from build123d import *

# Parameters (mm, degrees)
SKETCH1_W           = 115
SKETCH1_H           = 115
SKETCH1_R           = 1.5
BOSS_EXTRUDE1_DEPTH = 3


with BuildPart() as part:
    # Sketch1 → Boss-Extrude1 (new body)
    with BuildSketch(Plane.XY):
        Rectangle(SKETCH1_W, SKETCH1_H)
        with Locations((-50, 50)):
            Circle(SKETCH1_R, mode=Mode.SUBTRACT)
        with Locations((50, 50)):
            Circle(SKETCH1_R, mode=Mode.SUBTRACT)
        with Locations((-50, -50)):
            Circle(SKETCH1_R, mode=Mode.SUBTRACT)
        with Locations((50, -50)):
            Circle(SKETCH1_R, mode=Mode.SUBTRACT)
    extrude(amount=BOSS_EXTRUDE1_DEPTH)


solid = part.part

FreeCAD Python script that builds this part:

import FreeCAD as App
import Part
import Sketcher
from FreeCAD import Vector
Q = App.Units.Quantity


def add_polygon(sketch, points):
    """Adds a closed chain of lines whose ends are joined by coincident constraints."""
    first, n = sketch.GeometryCount, len(points)
    for a, b in zip(points, points[1:] + points[:1]):
        sketch.addGeometry(Part.LineSegment(App.Vector(*a, 0), App.Vector(*b, 0)), False)
    for i in range(n):
        sketch.addConstraint(Sketcher.Constraint("Coincident", first + i, 2, first + (i + 1) % n, 1))

doc = App.newDocument("Part")
body = doc.addObject("PartDesign::Body", "Body")

sketch1 = body.newObject("Sketcher::SketchObject", "Sketch")
sketch1.AttachmentSupport = (doc.getObject("XY_Plane"), [""])
sketch1.MapMode = "FlatFace"
add_polygon(sketch1, [(-57.5, 57.5), (-57.5, -57.5), (57.5, -57.5), (57.5, 57.5)])
sketch1.addGeometry(Part.Circle(Vector(-50, -50, 0), Vector(0, 0, 1), 1.5), False)
sketch1.addGeometry(Part.Circle(Vector(50, -50, 0), Vector(0, 0, 1), 1.5), False)
sketch1.addGeometry(Part.Circle(Vector(-50, 50, 0), Vector(0, 0, 1), 1.5), False)
sketch1.addGeometry(Part.Circle(Vector(50, 50, 0), Vector(0, 0, 1), 1.5), False)
sketch1.addConstraint([
    Sketcher.Constraint("Vertical", 0),
    Sketcher.Constraint("Horizontal", 1),
    Sketcher.Constraint("Vertical", 2),
    Sketcher.Constraint("Horizontal", 3),
    Sketcher.Constraint("Equal", 4, 5),
    Sketcher.Constraint("Equal", 5, 6),
    Sketcher.Constraint("Equal", 6, 7),
    Sketcher.Constraint("Symmetric", 5, 3, 6, 3, -1, 1),
    Sketcher.Constraint("Symmetric", 4, 3, 7, 3, -1, 1),
    Sketcher.Constraint("Symmetric", 0, 2, 2, 2, -1, 1),
    Sketcher.Constraint("Symmetric", 4, 3, 5, 3, -2),
    Sketcher.Constraint("Equal", 3, 0),
    Sketcher.Constraint("Diameter", 4, Q("3 mm")),
    Sketcher.Constraint("DistanceX", 1, 1, 1, 2, Q("115 mm")),
    Sketcher.Constraint("DistanceX", 4, 3, -1, 1, Q("50 mm")),
    Sketcher.Constraint("DistanceY", 4, 3, -1, 1, Q("50 mm")),
])
pad1 = body.newObject("PartDesign::Pad", "Pad")
pad1.Profile = sketch1
pad1.Length = 3

doc.recompute()
